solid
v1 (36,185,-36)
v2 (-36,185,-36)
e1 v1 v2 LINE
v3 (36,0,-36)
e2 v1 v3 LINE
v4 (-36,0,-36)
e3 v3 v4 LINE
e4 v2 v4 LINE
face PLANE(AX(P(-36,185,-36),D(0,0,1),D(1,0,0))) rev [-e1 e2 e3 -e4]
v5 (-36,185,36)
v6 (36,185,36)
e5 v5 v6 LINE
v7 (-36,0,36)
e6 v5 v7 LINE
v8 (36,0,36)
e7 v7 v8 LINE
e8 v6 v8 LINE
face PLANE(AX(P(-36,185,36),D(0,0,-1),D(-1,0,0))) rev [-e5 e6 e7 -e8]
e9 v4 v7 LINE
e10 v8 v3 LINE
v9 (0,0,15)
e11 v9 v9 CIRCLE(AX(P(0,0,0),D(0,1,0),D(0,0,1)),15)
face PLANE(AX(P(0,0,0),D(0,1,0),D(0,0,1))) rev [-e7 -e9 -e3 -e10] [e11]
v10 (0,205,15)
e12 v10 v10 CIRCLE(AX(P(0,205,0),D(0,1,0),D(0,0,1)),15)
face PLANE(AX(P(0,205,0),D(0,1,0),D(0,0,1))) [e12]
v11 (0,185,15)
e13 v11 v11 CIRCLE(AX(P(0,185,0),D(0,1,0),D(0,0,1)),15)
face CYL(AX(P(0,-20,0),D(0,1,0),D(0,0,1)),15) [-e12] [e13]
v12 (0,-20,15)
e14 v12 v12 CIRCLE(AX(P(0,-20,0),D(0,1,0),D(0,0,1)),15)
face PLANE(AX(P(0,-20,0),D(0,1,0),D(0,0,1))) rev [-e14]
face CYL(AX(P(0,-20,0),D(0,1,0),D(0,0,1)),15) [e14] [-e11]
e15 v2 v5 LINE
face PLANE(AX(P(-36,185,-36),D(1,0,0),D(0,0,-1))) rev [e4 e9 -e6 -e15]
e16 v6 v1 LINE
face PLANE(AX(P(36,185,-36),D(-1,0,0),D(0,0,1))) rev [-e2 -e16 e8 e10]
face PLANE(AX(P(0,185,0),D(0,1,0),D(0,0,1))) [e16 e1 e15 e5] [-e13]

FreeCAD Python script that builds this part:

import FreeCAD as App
import Part
import Sketcher
Q = App.Units.Quantity

doc = App.newDocument("Part")
body = doc.addObject("PartDesign::Body", "Body")

# Sketch on XZ plane
sketch1 = doc.addObject("Sketcher::SketchObject", "Sketch")
body.addObject(sketch1)
sketch1.AttachmentSupport = (doc.XZ_Plane, [""])
sketch1.MapMode = "FlatFace"
sketch1.addGeometry([
    Part.LineSegment(App.Vector(-36, -36, 0), App.Vector(-36, 36, 0)),
    Part.LineSegment(App.Vector(-36, 36, 0), App.Vector(36, 36, 0)),
    Part.LineSegment(App.Vector(36, 36, 0), App.Vector(36, -36, 0)),
    Part.LineSegment(App.Vector(36, -36, 0), App.Vector(-36, -36, 0)),
], False)
sketch1.addConstraint([
    Sketcher.Constraint("Coincident", 0, 2, 1, 1),
    Sketcher.Constraint("Coincident", 1, 2, 2, 1),
    Sketcher.Constraint("Coincident", 2, 2, 3, 1),
    Sketcher.Constraint("Coincident", 3, 2, 0, 1),
    Sketcher.Constraint("Vertical", 0),
    Sketcher.Constraint("Horizontal", 1),
    Sketcher.Constraint("Vertical", 2),
    Sketcher.Constraint("Horizontal", 3),
    Sketcher.Constraint("Symmetric", 0, 2, 2, 2, -1, 1),
    Sketcher.Constraint("Equal", 3, 0),
    Sketcher.Constraint("DistanceX", 1, 1, 1, 2, Q("72 mm")),
])
pad1 = doc.addObject("PartDesign::Pad", "Pad")
body.addObject(pad1)
pad1.Profile = sketch1
pad1.Length = 185
pad1.Reversed = True

# Sketch on XZ plane
sketch2 = doc.addObject("Sketcher::SketchObject", "Sketch001")
body.addObject(sketch2)
sketch2.AttachmentSupport = (doc.XZ_Plane, [""])
sketch2.MapMode = "FlatFace"
sketch2.AttachmentOffset = App.Placement(App.Vector(0, 0, -185), App.Rotation())
sketch2.addGeometry(Part.Circle(App.Vector(0, 0, 0), App.Vector(0, 0, 1), 15), False)
sketch2.addConstraint([
    Sketcher.Constraint("Coincident", 0, 3, -1, 1),
    Sketcher.Constraint("Diameter", 0, Q("30 mm")),
])
pad2 = doc.addObject("PartDesign::Pad", "Pad001")
body.addObject(pad2)
pad2.Profile = sketch2
pad2.Type = "TwoLengths"
pad2.Length = 20
pad2.Length2 = 205
pad2.Reversed = True

doc.recompute()
